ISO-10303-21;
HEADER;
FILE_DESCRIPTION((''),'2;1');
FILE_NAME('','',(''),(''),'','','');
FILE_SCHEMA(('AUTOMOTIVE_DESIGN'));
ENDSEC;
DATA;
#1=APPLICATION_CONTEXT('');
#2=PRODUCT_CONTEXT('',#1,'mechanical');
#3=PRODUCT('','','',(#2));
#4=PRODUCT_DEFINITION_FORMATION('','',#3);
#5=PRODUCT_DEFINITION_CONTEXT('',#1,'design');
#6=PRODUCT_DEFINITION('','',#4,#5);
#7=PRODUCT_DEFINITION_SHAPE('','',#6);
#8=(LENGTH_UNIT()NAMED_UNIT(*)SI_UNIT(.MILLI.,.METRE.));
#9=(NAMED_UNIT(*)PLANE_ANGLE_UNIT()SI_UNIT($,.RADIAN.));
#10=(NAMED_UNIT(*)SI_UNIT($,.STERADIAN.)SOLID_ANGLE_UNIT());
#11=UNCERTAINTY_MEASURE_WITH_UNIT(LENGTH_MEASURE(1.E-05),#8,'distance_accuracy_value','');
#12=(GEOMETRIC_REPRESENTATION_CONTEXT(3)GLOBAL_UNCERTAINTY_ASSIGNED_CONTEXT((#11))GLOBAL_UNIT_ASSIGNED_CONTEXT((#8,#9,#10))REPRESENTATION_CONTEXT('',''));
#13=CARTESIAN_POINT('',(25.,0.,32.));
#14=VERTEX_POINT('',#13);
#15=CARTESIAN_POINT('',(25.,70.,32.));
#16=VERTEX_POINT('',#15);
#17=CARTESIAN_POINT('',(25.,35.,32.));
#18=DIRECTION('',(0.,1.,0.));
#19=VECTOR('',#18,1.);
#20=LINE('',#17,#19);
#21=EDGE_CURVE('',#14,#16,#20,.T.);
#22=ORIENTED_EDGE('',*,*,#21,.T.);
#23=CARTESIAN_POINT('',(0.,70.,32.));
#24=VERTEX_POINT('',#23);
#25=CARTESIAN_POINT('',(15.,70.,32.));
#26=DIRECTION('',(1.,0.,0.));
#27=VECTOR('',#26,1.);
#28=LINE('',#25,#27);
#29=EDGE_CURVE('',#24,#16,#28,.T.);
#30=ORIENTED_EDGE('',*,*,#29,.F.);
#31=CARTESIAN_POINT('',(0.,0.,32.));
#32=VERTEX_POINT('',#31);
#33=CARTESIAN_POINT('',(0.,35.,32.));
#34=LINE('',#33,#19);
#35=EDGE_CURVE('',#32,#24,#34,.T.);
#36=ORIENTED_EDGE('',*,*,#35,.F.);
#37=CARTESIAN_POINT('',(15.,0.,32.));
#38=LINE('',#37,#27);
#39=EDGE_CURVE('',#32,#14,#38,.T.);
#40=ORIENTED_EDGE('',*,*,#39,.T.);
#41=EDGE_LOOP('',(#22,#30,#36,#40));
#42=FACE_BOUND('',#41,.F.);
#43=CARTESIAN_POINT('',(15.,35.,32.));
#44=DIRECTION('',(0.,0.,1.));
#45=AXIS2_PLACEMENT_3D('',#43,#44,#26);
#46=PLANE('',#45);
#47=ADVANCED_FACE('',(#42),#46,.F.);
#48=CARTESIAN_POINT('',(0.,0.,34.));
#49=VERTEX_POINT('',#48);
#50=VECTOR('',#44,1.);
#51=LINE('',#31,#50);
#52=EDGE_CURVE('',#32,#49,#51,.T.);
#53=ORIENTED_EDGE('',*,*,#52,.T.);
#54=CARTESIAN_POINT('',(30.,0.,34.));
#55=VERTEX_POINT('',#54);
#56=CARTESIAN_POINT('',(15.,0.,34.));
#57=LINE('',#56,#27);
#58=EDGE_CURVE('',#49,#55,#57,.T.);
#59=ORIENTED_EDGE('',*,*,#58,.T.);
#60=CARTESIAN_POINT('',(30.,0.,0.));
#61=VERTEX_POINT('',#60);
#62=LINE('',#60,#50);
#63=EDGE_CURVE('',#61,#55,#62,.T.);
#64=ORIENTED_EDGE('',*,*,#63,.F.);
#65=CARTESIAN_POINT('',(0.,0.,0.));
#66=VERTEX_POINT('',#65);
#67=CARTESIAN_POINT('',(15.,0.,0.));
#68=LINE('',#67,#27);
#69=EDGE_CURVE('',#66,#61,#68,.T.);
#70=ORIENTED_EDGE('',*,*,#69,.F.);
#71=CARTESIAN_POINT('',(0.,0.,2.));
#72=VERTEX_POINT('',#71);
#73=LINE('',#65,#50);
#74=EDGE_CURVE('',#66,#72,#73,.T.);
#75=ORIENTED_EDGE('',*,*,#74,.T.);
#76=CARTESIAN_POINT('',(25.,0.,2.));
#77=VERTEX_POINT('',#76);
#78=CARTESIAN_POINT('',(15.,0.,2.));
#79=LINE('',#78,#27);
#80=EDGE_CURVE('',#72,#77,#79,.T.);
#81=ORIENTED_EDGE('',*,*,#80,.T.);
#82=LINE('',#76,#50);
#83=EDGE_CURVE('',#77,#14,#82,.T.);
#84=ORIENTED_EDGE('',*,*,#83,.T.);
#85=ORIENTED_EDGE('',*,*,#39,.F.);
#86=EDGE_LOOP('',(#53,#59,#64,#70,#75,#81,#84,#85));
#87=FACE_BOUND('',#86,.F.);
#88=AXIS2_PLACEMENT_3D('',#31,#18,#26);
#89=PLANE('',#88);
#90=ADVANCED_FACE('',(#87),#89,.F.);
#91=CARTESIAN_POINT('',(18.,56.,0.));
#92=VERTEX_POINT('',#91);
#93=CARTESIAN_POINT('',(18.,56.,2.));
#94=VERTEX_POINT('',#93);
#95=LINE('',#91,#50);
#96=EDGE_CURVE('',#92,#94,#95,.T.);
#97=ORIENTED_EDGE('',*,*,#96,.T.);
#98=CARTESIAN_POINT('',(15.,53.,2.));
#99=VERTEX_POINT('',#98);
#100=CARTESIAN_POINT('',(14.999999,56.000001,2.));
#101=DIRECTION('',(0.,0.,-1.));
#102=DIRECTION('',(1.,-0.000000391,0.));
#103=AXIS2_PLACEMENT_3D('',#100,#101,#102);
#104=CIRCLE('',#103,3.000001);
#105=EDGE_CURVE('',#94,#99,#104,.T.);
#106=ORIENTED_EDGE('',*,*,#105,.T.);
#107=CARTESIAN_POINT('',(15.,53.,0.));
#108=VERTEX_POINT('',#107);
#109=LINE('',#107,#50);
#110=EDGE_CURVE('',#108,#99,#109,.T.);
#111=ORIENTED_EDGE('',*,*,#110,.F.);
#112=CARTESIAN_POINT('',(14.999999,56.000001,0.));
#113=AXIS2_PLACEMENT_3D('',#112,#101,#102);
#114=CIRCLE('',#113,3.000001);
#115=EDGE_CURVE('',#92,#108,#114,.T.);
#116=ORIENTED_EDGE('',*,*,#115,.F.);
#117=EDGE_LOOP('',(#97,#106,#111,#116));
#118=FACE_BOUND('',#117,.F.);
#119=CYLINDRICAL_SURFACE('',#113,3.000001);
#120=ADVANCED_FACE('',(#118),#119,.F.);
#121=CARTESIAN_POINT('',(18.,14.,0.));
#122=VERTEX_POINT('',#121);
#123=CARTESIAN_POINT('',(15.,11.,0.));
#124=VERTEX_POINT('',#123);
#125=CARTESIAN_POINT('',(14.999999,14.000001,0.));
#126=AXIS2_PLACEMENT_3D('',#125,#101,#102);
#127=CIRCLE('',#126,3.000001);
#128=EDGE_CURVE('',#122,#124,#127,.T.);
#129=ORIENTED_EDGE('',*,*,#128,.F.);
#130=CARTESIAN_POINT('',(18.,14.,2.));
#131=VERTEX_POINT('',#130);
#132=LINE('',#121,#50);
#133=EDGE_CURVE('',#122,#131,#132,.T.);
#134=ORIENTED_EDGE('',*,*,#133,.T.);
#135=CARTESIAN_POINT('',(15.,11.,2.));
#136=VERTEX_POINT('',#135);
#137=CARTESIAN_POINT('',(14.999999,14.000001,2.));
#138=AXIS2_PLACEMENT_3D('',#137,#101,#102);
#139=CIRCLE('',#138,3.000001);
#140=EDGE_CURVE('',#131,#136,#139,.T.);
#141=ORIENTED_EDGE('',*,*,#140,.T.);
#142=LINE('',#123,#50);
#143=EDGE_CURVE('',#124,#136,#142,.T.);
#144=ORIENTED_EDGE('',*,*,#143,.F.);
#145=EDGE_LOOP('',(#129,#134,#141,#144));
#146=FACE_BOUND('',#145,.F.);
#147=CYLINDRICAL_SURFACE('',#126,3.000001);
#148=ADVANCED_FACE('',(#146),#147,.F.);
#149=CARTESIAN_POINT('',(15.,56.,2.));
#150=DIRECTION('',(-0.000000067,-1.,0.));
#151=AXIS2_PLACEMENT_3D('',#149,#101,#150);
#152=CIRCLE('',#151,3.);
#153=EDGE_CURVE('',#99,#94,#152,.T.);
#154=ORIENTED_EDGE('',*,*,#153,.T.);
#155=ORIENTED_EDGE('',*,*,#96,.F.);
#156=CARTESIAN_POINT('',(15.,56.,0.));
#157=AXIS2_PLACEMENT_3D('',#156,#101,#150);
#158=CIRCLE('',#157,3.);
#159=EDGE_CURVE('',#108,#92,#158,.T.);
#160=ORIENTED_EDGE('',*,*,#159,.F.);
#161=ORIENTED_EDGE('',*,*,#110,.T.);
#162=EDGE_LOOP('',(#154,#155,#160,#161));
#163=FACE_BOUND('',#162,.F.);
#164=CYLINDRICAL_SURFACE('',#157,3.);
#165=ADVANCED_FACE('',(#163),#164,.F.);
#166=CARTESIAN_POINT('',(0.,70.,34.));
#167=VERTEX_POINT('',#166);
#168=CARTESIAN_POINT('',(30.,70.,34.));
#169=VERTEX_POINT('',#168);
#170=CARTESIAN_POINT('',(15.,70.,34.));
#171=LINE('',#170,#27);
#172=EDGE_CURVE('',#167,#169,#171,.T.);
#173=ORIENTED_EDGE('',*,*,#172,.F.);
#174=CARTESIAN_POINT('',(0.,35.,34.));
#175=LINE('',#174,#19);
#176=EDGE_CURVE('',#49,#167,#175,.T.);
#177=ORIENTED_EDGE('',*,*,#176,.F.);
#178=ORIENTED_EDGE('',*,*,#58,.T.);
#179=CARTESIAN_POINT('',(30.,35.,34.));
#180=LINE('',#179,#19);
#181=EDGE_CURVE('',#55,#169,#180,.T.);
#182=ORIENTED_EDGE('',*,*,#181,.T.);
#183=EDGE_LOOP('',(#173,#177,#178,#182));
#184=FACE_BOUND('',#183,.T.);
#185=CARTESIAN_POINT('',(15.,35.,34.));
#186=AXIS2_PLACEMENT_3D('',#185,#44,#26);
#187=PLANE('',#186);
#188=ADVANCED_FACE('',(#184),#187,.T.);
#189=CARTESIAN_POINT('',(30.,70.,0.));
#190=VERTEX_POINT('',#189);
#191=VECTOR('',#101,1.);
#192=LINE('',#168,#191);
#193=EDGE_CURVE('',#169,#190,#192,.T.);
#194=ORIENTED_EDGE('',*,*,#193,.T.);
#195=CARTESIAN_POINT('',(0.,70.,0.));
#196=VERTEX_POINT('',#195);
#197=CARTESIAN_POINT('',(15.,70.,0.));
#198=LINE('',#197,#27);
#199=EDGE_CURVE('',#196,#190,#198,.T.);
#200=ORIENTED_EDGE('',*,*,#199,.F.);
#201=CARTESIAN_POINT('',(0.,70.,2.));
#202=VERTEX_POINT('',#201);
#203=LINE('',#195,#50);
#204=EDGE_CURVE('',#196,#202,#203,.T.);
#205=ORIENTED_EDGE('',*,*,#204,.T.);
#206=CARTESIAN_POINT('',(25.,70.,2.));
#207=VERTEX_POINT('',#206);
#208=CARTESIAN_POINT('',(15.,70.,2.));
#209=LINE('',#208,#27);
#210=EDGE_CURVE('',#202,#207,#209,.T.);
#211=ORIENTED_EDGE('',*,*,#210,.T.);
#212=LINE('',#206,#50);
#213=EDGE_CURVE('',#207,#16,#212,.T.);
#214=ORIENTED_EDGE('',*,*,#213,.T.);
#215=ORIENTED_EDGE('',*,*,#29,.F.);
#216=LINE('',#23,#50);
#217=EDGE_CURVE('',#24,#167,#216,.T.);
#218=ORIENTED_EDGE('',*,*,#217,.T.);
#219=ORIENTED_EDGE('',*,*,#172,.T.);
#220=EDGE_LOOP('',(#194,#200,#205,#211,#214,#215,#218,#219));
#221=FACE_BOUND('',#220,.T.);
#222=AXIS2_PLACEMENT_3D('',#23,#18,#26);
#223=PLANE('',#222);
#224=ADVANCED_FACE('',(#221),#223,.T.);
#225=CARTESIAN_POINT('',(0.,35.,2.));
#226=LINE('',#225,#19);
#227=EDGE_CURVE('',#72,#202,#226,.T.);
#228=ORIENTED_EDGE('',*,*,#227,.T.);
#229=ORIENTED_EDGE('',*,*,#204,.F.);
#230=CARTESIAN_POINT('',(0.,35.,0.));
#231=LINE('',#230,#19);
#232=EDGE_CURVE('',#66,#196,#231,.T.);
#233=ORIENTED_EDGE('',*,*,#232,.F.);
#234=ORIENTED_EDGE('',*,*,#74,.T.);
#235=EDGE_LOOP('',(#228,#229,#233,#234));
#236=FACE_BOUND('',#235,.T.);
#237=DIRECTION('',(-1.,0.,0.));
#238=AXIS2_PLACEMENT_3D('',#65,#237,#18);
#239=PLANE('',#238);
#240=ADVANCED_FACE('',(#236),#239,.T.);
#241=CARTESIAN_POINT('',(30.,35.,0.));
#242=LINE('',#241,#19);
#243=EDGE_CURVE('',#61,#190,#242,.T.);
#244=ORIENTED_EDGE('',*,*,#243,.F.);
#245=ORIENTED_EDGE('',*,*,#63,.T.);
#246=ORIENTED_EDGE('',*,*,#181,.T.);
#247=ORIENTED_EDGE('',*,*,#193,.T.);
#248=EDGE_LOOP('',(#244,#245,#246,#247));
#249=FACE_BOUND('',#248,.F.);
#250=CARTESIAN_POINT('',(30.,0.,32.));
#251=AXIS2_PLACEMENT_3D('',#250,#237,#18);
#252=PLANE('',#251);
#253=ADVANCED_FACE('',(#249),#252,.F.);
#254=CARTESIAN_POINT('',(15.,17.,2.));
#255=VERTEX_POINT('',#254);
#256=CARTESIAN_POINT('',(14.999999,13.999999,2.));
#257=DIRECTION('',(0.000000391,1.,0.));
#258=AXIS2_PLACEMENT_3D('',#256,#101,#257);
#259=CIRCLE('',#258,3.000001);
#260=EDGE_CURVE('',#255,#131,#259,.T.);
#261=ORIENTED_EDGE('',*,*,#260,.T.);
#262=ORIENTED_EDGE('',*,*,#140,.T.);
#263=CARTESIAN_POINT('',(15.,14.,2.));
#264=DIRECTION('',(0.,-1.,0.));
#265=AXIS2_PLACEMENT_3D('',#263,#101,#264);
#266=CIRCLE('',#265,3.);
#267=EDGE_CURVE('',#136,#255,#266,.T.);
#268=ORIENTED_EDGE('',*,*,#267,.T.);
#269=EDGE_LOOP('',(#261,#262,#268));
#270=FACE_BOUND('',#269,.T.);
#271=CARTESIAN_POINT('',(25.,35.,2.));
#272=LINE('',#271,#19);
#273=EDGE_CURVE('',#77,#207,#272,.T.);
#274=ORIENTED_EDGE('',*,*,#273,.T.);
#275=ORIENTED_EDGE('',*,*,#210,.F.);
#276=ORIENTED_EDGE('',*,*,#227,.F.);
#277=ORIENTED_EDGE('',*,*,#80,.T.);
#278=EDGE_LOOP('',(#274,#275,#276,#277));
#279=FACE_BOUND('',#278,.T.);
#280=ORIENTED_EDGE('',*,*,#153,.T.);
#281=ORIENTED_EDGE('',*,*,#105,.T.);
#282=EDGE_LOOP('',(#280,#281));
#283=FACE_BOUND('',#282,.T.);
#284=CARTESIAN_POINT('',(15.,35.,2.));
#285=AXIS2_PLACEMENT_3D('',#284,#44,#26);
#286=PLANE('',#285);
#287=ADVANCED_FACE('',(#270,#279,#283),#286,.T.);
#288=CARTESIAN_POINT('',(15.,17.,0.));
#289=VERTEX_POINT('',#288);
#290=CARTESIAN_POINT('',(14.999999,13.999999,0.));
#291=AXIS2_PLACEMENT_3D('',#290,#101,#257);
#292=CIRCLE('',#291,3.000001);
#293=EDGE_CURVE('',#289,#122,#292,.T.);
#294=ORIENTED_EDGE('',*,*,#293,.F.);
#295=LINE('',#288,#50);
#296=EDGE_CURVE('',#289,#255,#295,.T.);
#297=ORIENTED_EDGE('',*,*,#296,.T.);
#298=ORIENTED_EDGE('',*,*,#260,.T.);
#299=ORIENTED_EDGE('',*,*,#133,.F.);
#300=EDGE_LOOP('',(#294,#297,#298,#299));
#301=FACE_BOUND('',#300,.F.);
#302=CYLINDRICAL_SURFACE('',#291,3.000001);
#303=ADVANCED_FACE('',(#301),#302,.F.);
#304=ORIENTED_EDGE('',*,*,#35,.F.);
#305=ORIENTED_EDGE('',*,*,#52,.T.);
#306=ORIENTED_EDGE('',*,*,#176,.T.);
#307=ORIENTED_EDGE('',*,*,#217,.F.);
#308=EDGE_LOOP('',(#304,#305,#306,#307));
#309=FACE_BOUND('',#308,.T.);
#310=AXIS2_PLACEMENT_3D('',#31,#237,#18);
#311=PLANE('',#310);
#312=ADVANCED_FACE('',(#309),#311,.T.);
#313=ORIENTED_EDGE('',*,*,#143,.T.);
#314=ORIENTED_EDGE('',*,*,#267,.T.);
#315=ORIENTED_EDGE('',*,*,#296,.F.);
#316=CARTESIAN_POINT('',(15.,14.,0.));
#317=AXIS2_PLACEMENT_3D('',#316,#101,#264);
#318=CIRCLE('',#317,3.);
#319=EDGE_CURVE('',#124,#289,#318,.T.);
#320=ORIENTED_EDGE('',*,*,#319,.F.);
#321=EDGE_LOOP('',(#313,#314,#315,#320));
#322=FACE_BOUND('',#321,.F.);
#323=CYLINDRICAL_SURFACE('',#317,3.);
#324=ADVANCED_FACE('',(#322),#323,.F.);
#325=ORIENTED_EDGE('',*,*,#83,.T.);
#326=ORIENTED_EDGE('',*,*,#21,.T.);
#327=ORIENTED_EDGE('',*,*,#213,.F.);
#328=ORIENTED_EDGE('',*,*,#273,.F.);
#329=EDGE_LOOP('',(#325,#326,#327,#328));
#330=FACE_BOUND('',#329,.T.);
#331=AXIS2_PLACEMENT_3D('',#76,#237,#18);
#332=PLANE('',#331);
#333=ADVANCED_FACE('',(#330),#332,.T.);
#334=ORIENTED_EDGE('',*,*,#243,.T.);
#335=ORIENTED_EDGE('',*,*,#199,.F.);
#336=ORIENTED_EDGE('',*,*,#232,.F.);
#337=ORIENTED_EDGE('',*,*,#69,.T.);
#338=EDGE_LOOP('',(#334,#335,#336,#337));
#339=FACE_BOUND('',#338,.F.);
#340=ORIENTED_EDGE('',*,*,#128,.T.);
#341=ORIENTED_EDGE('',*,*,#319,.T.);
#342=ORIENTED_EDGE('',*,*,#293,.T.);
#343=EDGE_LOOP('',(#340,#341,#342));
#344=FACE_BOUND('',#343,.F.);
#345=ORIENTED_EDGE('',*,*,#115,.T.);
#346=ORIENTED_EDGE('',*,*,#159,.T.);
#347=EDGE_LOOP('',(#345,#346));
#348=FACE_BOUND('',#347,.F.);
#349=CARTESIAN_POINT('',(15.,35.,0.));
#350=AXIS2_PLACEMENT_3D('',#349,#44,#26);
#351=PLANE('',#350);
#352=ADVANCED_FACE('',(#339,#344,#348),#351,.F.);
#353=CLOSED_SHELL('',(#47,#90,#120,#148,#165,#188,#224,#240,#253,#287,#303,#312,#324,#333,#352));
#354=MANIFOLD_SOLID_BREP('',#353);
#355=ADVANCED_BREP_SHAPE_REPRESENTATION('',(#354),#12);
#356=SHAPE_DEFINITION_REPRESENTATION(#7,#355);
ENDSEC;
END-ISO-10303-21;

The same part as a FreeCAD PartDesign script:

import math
import FreeCAD as App
import Part
import Sketcher
from FreeCAD import Vector
Q = App.Units.Quantity

doc = App.newDocument("Part")
body = doc.addObject("PartDesign::Body", "Body")

# Sketch on XY plane
sketch1 = body.newObject("Sketcher::SketchObject", "Sketch")
sketch1.AttachmentSupport = (doc.getObject("XY_Plane"), [""])
sketch1.MapMode = "FlatFace"
sketch1.addGeometry([
    Part.LineSegment(Vector(0, 70, 0), Vector(0, 0, 0)),
    Part.LineSegment(Vector(0, 0, 0), Vector(30, 0, 0)),
    Part.LineSegment(Vector(30, 0, 0), Vector(30, 70, 0)),
    Part.LineSegment(Vector(30, 70, 0), Vector(0, 70, 0)),
], False)
sketch1.addConstraint([
    Sketcher.Constraint("Coincident", 0, 2, 1, 1),
    Sketcher.Constraint("Coincident", 1, 2, 2, 1),
    Sketcher.Constraint("Coincident", 2, 2, 3, 1),
    Sketcher.Constraint("Coincident", 3, 2, 0, 1),
    Sketcher.Constraint("Vertical", 0),
    Sketcher.Constraint("Horizontal", 1),
    Sketcher.Constraint("Vertical", 2),
    Sketcher.Constraint("Horizontal", 3),
    Sketcher.Constraint("Coincident", 0, 2, -1, 1),
    Sketcher.Constraint("DistanceX", 1, 1, 1, 2, Q("30 mm")),
    Sketcher.Constraint("DistanceY", 0, 2, 0, 1, Q("70 mm")),
])
pad1 = body.newObject("PartDesign::Pad", "Pad")
pad1.Profile = sketch1
pad1.Length = 2

# Sketch on XY plane
sketch2 = body.newObject("Sketcher::SketchObject", "Sketch001")
sketch2.AttachmentSupport = (doc.getObject("XY_Plane"), [""])
sketch2.MapMode = "FlatFace"
sketch2.AttachmentOffset = App.Placement(Vector(0, 0, 2), App.Rotation())
sketch2.addGeometry([
    Part.LineSegment(Vector(25, 70, 0), Vector(25, 0, 0)),
    Part.LineSegment(Vector(25, 0, 0), Vector(30, 0, 0)),
    Part.LineSegment(Vector(30, 0, 0), Vector(30, 70, 0)),
    Part.LineSegment(Vector(30, 70, 0), Vector(25, 70, 0)),
], False)
sketch2.addConstraint([
    Sketcher.Constraint("Coincident", 0, 2, 1, 1),
    Sketcher.Constraint("Coincident", 1, 2, 2, 1),
    Sketcher.Constraint("Coincident", 2, 2, 3, 1),
    Sketcher.Constraint("Coincident", 3, 2, 0, 1),
    Sketcher.Constraint("Vertical", 0),
    Sketcher.Constraint("Horizontal", 1),
    Sketcher.Constraint("Vertical", 2),
    Sketcher.Constraint("Horizontal", 3),
    Sketcher.Constraint("PointOnObject", 0, 2, -1),
    Sketcher.Constraint("DistanceX", 1, 1, 1, 2, Q("5 mm")),
    Sketcher.Constraint("DistanceY", 0, 2, 0, 1, Q("70 mm")),
    Sketcher.Constraint("DistanceX", -1, 1, 0, 2, Q("25 mm")),
])
pad2 = body.newObject("PartDesign::Pad", "Pad001")
pad2.Profile = sketch2
pad2.Length = 30

# Sketch on XY plane
sketch3 = body.newObject("Sketcher::SketchObject", "Sketch002")
sketch3.AttachmentSupport = (doc.getObject("XY_Plane"), [""])
sketch3.MapMode = "FlatFace"
sketch3.AttachmentOffset = App.Placement(Vector(0, 0, 32), App.Rotation())
sketch3.addGeometry([
    Part.LineSegment(Vector(0, 70, 0), Vector(0, 0, 0)),
    Part.LineSegment(Vector(0, 0, 0), Vector(30, 0, 0)),
    Part.LineSegment(Vector(30, 0, 0), Vector(30, 70, 0)),
    Part.LineSegment(Vector(30, 70, 0), Vector(0, 70, 0)),
], False)
sketch3.addConstraint([
    Sketcher.Constraint("Coincident", 0, 2, 1, 1),
    Sketcher.Constraint("Coincident", 1, 2, 2, 1),
    Sketcher.Constraint("Coincident", 2, 2, 3, 1),
    Sketcher.Constraint("Coincident", 3, 2, 0, 1),
    Sketcher.Constraint("Vertical", 0),
    Sketcher.Constraint("Horizontal", 1),
    Sketcher.Constraint("Vertical", 2),
    Sketcher.Constraint("Horizontal", 3),
    Sketcher.Constraint("Coincident", 0, 2, -1, 1),
    Sketcher.Constraint("DistanceX", 1, 1, 1, 2, Q("30 mm")),
    Sketcher.Constraint("DistanceY", 0, 2, 0, 1, Q("70 mm")),
])
pad3 = body.newObject("PartDesign::Pad", "Pad002")
pad3.Profile = sketch3
pad3.Length = 2

# Sketch on XY plane
sketch4 = body.newObject("Sketcher::SketchObject", "Sketch003")
sketch4.AttachmentSupport = (doc.getObject("XY_Plane"), [""])
sketch4.MapMode = "FlatFace"
sketch4.addGeometry([
    Part.ArcOfCircle(Part.Circle(Vector(14.999999, 14.000001, 0), Vector(0, 0, 1), 3.000001), math.radians(-89.999978), math.radians(-0.000022)),  # 0
    Part.ArcOfCircle(Part.Circle(Vector(15, 14, 0), Vector(0, 0, 1), 3), math.radians(90), math.radians(270)),  # 1
    Part.ArcOfCircle(Part.Circle(Vector(14.999999, 13.999999, 0), Vector(0, 0, 1), 3.000001), math.radians(0.000022), math.radians(89.999978)),  # 2
    Part.ArcOfCircle(Part.Circle(Vector(14.999999, 56.000001, 0), Vector(0, 0, 1), 3.000001), math.radians(-89.999978), math.radians(-0.000022)),  # 3
    Part.ArcOfCircle(Part.Circle(Vector(15, 56, 0), Vector(0, 0, 1), 3), math.radians(0.000004), math.radians(269.999996)),  # 4
], False)
sketch4.addConstraint([
    Sketcher.Constraint("Tangent", 0, 1, 1, 2),
    Sketcher.Constraint("Tangent", 1, 1, 2, 2),
    Sketcher.Constraint("Tangent", 2, 1, 0, 2),
    Sketcher.Constraint("Tangent", 3, 1, 4, 2),
    Sketcher.Constraint("Coincident", 4, 1, 3, 2),
    Sketcher.Constraint("Equal", 2, 3),
    Sketcher.Constraint("Horizontal", 1, 3, 2, 1),
    Sketcher.Constraint("Horizontal", 3, 3, 4, 1),
    Sketcher.Constraint("Vertical", 2, 3, 3, 3),
    Sketcher.Constraint("Vertical", 4, 3, 0, 1),
    Sketcher.Constraint("Vertical", 0, 1, 1, 1),
    Sketcher.Constraint("Vertical", 1, 1, 3, 1),
    Sketcher.Constraint("Radius", 0, Q("3.000001 mm")),
    Sketcher.Constraint("DistanceX", -1, 1, 0, 3, Q("14.999999 mm")),
    Sketcher.Constraint("DistanceY", -1, 1, 0, 3, Q("14.000001 mm")),
    Sketcher.Constraint("DistanceY", -1, 1, 3, 3, Q("56.000001 mm")),
])
pocket1 = body.newObject("PartDesign::Pocket", "Pocket")
pocket1.Profile = sketch4
pocket1.Length = 5
pocket1.Reversed = True

doc.recompute()
